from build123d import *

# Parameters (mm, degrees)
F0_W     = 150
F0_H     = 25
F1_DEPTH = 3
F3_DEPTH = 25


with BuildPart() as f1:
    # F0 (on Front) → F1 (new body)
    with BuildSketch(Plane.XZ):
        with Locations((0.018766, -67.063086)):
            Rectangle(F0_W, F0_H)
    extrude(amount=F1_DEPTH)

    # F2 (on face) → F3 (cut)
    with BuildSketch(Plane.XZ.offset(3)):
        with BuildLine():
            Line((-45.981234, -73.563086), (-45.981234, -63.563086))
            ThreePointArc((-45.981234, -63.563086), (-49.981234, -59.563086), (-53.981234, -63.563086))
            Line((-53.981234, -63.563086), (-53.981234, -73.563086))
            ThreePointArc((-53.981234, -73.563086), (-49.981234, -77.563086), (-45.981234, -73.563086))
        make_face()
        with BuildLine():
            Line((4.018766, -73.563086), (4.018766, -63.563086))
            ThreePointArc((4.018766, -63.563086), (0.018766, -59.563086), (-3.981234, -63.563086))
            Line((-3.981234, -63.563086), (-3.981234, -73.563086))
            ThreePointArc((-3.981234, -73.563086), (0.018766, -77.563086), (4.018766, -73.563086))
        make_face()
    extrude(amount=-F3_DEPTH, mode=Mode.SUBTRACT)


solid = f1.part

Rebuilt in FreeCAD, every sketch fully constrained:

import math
import FreeCAD as App
import Part
import Sketcher

doc = App.newDocument("Part")
body = doc.addObject("PartDesign::Body", "Body")

# Sketch on XZ plane
sketch1 = doc.addObject("Sketcher::SketchObject", "Sketch")
body.addObject(sketch1)
sketch1.AttachmentSupport = (doc.XZ_Plane, [""])
sketch1.MapMode = "FlatFace"
sketch1.addGeometry(Part.LineSegment(App.Vector(-75, -55, 0), App.Vector(-75, -80, 0)), False)
sketch1.addGeometry(Part.LineSegment(App.Vector(-75, -80, 0), App.Vector(75, -80, 0)), False)
sketch1.addGeometry(Part.LineSegment(App.Vector(75, -80, 0), App.Vector(75, -55, 0)), False)
sketch1.addGeometry(Part.LineSegment(App.Vector(75, -55, 0), App.Vector(-75, -55, 0)), False)
sketch1.addConstraint(Sketcher.Constraint("Coincident", 0, 2, 1, 1))
sketch1.addConstraint(Sketcher.Constraint("Coincident", 1, 2, 2, 1))
sketch1.addConstraint(Sketcher.Constraint("Coincident", 2, 2, 3, 1))
sketch1.addConstraint(Sketcher.Constraint("Coincident", 3, 2, 0, 1))
sketch1.addConstraint(Sketcher.Constraint("Vertical", 0))
sketch1.addConstraint(Sketcher.Constraint("Horizontal", 1))
sketch1.addConstraint(Sketcher.Constraint("Vertical", 2))
sketch1.addConstraint(Sketcher.Constraint("Horizontal", 3))
sketch1.addConstraint(Sketcher.Constraint("DistanceX", 1, 1, 1, 2, 150.0))
sketch1.addConstraint(Sketcher.Constraint("DistanceY", 0, 2, 0, 1, 25.0))
sketch1.addConstraint(Sketcher.Constraint("DistanceX", 0, 2, -1, 1, 74.981234))
sketch1.addConstraint(Sketcher.Constraint("DistanceY", 0, 2, -1, 1, 79.563086))
pad1 = doc.addObject("PartDesign::Pad", "Pad")
body.addObject(pad1)
pad1.Profile = sketch1
pad1.Length = 3

# Sketch on XZ plane
sketch2 = doc.addObject("Sketcher::SketchObject", "Sketch001")
body.addObject(sketch2)
sketch2.AttachmentSupport = (doc.XZ_Plane, [""])
sketch2.MapMode = "FlatFace"
sketch2.AttachmentOffset = App.Placement(App.Vector(0, 0, 3), App.Rotation())
sketch2.addGeometry(Part.LineSegment(App.Vector(-46, -73.6, 0), App.Vector(-46, -63.6, 0)), False)
sketch2.addGeometry(Part.ArcOfCircle(Part.Circle(App.Vector(-50, -63.6, 0), App.Vector(0, 0, 1), 4), math.radians(0), math.radians(180)), False)
sketch2.addGeometry(Part.LineSegment(App.Vector(-54, -63.6, 0), App.Vector(-54, -73.6, 0)), False)
sketch2.addGeometry(Part.ArcOfCircle(Part.Circle(App.Vector(-50, -73.6, 0), App.Vector(0, 0, 1), 4), math.radians(180), math.radians(360)), False)
sketch2.addGeometry(Part.LineSegment(App.Vector(4, -73.6, 0), App.Vector(4, -63.6, 0)), False)
sketch2.addGeometry(Part.ArcOfCircle(Part.Circle(App.Vector(0, -63.6, 0), App.Vector(0, 0, 1), 4), math.radians(0), math.radians(180)), False)
sketch2.addGeometry(Part.LineSegment(App.Vector(-4, -63.6, 0), App.Vector(-4, -73.6, 0)), False)
sketch2.addGeometry(Part.ArcOfCircle(Part.Circle(App.Vector(0, -73.6, 0), App.Vector(0, 0, 1), 4), math.radians(180), math.radians(360)), False)
sketch2.addConstraint(Sketcher.Constraint("Tangent", 0, 2, 1, 1))
sketch2.addConstraint(Sketcher.Constraint("Tangent", 1, 2, 2, 1))
sketch2.addConstraint(Sketcher.Constraint("Tangent", 2, 2, 3, 1))
sketch2.addConstraint(Sketcher.Constraint("Tangent", 3, 2, 0, 1))
sketch2.addConstraint(Sketcher.Constraint("Tangent", 4, 2, 5, 1))
sketch2.addConstraint(Sketcher.Constraint("Tangent", 5, 2, 6, 1))
sketch2.addConstraint(Sketcher.Constraint("Tangent", 6, 2, 7, 1))
sketch2.addConstraint(Sketcher.Constraint("Tangent", 7, 2, 4, 1))
sketch2.addConstraint(Sketcher.Constraint("Vertical", 0))
sketch2.addConstraint(Sketcher.Constraint("Vertical", 2))
sketch2.addConstraint(Sketcher.Constraint("Vertical", 4))
sketch2.addConstraint(Sketcher.Constraint("Vertical", 6))
sketch2.addConstraint(Sketcher.Constraint("Equal", 3, 5))
sketch2.addConstraint(Sketcher.Constraint("Horizontal", 1, 3, 5, 3))
sketch2.addConstraint(Sketcher.Constraint("Horizontal", 3, 3, 7, 3))
sketch2.addConstraint(Sketcher.Constraint("Radius", 1, 4.0))
sketch2.addConstraint(Sketcher.Constraint("DistanceY", 0, 1, 0, 2, 10.0))
sketch2.addConstraint(Sketcher.Constraint("DistanceX", 1, 3, 5, 3, 50.0))
sketch2.addConstraint(Sketcher.Constraint("DistanceX", 1, 3, -1, 1, 49.981234))
sketch2.addConstraint(Sketcher.Constraint("DistanceY", 1, 3, -1, 1, 63.563086))
pocket1 = doc.addObject("PartDesign::Pocket", "Pocket")
body.addObject(pocket1)
pocket1.Profile = sketch2
pocket1.Length = 25

doc.recompute()
